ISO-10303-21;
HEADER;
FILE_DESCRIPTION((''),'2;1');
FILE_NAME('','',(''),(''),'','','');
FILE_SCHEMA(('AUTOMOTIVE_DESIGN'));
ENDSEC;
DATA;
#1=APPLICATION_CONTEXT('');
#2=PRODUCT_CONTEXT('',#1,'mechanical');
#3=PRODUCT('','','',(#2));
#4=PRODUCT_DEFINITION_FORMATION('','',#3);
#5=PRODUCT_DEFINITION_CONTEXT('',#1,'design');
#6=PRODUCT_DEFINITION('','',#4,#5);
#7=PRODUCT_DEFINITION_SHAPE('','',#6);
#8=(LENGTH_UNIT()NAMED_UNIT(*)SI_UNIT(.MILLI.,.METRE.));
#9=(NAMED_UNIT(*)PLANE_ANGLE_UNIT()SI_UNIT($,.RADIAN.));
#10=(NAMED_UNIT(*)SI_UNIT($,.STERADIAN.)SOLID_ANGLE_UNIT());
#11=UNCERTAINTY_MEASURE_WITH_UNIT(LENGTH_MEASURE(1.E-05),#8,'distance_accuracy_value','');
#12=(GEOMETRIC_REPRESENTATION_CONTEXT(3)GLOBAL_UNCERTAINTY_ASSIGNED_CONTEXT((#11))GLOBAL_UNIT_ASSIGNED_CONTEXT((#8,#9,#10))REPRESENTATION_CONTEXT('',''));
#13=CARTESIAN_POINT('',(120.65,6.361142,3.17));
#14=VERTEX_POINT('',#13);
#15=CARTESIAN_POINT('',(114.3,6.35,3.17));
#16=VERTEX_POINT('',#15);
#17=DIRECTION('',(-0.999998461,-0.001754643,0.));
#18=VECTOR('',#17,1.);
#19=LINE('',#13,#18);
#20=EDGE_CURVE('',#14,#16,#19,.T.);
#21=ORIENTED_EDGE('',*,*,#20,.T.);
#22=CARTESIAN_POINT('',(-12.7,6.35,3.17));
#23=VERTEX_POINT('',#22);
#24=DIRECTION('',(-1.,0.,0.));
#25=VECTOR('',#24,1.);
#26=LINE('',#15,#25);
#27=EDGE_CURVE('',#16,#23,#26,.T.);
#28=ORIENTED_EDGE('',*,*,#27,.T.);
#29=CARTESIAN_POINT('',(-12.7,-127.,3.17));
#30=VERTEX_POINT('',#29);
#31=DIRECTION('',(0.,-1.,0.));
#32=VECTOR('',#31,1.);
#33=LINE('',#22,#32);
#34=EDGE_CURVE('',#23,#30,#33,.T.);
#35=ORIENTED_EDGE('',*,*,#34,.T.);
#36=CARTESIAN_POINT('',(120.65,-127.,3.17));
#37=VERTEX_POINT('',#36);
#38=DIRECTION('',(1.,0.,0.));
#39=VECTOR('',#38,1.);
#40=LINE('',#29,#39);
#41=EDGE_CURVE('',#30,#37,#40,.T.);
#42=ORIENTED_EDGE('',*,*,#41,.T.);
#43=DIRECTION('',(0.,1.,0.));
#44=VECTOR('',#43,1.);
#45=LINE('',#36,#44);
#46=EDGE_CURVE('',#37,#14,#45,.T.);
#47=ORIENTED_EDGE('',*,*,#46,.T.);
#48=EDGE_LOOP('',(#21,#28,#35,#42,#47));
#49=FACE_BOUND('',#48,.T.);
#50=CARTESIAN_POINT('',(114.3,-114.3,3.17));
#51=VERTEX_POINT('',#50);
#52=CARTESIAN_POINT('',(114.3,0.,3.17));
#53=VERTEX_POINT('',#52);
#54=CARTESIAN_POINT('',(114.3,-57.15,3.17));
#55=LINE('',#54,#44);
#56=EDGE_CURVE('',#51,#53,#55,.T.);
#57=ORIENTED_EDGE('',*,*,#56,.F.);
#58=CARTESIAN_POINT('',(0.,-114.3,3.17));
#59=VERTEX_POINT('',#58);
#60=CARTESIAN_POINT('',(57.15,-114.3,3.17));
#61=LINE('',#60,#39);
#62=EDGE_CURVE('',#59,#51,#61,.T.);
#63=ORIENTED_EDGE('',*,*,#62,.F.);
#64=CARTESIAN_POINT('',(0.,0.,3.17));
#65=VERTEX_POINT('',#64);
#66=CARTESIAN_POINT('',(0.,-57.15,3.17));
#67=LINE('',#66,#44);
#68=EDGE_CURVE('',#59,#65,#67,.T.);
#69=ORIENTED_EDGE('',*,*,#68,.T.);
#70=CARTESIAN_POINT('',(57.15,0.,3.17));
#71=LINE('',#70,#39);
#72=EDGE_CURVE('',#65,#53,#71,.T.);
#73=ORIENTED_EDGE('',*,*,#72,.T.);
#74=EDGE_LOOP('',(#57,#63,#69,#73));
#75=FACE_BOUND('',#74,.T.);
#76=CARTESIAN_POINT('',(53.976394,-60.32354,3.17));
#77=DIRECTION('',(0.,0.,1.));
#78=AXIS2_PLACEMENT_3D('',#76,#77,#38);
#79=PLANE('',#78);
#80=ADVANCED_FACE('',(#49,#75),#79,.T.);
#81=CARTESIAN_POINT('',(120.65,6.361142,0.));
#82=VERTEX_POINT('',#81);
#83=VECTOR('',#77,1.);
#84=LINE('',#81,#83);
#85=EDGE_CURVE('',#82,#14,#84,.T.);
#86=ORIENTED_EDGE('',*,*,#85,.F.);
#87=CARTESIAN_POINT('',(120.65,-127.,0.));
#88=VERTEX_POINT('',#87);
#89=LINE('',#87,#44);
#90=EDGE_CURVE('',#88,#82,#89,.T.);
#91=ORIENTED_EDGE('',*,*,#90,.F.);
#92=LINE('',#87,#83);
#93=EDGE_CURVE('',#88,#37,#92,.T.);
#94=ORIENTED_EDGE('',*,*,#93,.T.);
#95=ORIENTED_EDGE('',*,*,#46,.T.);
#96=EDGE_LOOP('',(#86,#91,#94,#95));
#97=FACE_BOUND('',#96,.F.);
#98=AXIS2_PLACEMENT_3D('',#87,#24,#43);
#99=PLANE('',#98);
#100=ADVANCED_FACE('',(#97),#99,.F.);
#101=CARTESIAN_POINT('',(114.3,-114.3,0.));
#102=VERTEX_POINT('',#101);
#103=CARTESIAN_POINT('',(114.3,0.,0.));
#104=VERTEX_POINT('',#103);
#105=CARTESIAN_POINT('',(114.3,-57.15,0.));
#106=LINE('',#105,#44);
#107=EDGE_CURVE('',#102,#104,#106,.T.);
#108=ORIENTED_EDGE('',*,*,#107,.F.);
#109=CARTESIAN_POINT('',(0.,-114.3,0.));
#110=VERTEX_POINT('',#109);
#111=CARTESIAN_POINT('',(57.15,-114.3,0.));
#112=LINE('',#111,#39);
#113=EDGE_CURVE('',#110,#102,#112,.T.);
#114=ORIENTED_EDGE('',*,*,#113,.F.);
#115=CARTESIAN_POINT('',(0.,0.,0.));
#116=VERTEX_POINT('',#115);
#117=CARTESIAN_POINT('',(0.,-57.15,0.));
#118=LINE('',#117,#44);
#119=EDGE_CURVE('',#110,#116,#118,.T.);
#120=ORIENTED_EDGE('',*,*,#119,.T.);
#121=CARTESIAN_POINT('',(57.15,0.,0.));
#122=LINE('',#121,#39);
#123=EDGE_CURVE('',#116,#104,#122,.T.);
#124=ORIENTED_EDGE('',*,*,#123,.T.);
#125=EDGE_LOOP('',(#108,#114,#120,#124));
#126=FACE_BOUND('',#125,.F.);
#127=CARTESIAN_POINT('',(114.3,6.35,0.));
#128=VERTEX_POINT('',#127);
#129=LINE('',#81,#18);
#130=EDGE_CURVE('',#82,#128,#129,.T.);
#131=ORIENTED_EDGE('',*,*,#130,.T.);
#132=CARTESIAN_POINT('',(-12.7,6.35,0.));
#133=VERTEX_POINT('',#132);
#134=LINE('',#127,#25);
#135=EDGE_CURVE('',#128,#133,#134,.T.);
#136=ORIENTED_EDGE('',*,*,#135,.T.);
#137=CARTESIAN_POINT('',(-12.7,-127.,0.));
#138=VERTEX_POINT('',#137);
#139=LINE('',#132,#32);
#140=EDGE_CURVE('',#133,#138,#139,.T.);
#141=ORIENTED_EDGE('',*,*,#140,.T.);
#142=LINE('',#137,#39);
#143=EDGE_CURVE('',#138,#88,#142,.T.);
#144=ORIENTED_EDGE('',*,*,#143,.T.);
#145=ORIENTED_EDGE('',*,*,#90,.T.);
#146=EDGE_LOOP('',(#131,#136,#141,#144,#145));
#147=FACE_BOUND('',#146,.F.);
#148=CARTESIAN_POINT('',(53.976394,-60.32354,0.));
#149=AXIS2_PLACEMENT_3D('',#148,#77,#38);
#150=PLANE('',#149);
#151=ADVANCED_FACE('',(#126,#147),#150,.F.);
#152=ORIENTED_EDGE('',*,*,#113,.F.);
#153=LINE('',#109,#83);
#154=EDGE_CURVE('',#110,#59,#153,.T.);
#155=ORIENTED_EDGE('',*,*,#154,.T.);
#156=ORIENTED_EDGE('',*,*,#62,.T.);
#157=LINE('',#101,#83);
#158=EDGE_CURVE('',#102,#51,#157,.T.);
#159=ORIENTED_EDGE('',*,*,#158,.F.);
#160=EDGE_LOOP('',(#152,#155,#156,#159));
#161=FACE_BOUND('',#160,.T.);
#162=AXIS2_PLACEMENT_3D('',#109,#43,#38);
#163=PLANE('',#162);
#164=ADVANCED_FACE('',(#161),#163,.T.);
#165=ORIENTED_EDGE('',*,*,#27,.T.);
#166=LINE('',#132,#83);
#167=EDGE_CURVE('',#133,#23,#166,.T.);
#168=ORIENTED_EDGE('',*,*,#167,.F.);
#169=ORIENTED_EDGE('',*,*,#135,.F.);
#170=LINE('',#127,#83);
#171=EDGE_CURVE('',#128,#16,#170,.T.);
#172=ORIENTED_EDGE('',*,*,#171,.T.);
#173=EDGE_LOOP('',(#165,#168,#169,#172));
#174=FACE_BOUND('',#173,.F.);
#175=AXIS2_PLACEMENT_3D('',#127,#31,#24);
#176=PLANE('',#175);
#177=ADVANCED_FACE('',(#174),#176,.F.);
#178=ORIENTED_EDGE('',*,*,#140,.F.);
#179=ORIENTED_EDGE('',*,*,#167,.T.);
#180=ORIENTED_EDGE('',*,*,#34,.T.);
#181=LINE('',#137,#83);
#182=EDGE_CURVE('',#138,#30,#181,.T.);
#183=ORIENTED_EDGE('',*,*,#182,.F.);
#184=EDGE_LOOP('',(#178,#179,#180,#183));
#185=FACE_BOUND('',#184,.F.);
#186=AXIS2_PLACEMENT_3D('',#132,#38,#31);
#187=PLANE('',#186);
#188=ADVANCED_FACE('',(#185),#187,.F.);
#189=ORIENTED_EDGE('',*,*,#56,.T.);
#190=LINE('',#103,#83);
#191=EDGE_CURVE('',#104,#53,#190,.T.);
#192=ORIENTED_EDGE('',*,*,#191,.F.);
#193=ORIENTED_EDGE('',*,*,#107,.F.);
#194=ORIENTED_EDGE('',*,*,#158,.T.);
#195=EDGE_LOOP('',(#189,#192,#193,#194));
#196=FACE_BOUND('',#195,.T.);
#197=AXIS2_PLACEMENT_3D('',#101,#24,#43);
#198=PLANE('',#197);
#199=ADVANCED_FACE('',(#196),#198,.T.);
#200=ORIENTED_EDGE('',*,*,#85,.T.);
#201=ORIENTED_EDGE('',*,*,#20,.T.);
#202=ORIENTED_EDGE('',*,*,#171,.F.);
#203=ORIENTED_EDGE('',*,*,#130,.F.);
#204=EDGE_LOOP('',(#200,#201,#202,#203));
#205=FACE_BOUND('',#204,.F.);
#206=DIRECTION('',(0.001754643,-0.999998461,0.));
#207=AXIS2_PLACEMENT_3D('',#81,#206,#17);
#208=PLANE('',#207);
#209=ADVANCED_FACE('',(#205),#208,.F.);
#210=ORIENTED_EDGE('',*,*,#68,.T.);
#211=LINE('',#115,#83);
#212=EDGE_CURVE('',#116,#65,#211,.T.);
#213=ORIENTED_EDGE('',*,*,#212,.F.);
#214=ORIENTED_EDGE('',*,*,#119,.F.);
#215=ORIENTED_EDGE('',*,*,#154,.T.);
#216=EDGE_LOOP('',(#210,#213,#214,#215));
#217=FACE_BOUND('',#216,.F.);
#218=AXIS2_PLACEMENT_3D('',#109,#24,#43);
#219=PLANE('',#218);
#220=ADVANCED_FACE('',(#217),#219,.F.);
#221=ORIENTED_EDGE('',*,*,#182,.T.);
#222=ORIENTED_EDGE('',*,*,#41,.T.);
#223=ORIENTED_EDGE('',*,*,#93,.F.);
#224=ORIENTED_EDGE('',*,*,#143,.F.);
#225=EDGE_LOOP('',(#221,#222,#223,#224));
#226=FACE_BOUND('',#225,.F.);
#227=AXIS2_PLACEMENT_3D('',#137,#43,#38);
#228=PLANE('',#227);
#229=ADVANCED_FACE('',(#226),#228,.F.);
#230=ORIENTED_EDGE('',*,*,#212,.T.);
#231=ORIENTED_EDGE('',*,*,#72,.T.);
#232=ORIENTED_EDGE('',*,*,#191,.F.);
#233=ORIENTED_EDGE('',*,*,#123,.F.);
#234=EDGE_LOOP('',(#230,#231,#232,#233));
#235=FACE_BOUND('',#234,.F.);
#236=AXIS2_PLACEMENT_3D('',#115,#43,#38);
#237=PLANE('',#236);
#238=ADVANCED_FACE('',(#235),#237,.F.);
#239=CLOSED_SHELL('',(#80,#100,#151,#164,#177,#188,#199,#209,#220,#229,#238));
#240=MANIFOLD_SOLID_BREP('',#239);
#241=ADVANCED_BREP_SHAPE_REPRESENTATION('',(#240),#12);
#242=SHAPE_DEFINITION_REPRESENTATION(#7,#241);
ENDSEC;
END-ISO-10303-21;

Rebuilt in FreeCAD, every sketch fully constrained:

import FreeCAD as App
import Part
import Sketcher

V = App.Vector
Q = App.Units.Quantity


def add_polygon(sketch, points):
    """Adds a closed chain of lines whose ends are joined by coincident constraints."""
    first, n = sketch.GeometryCount, len(points)
    for a, b in zip(points, points[1:] + points[:1]):
        sketch.addGeometry(Part.LineSegment(App.Vector(*a, 0), App.Vector(*b, 0)), False)
    for i in range(n):
        sketch.addConstraint(Sketcher.Constraint("Coincident", first + i, 2, first + (i + 1) % n, 1))

doc = App.newDocument("Part")
body = doc.addObject("PartDesign::Body", "Body")

# Sketch on XY plane
sketch1 = doc.addObject("Sketcher::SketchObject", "Sketch")
body.addObject(sketch1)
sketch1.AttachmentSupport = (doc.XY_Plane, [""])
sketch1.MapMode = "FlatFace"
add_polygon(sketch1, [(114.3, 6.35), (-12.7, 6.35), (-12.7, -127), (120.65, -127), (120.65, 6.361142)])  # lines 0-4
add_polygon(sketch1, [(114.3, -114.3), (0, -114.3), (0, 0), (114.3, 0)])  # lines 5-8
sketch1.addConstraint([
    Sketcher.Constraint("Horizontal", 0),
    Sketcher.Constraint("Vertical", 1),
    Sketcher.Constraint("Horizontal", 2),
    Sketcher.Constraint("Vertical", 3),
    Sketcher.Constraint("Horizontal", 5),
    Sketcher.Constraint("Vertical", 6),
    Sketcher.Constraint("Horizontal", 7),
    Sketcher.Constraint("Vertical", 8),
    Sketcher.Constraint("Coincident", 6, 2, -1, 1),
    Sketcher.Constraint("Vertical", 4, 2, 7, 2),
    Sketcher.Constraint("Equal", 2, 1),
    Sketcher.Constraint("Equal", 7, 6),
    Sketcher.Constraint("DistanceX", 0, 2, 0, 1, Q("5 in")),
    Sketcher.Constraint("DistanceX", 5, 2, 5, 1, Q("4.5 in")),
    Sketcher.Constraint("DistanceY", 1, 2, -1, 1, Q("5 in")),
    Sketcher.Constraint("DistanceX", 2, 1, 2, 2, Q("5.25 in")),
    Sketcher.Constraint("DistanceY", 3, 1, 3, 2, 133.361142),
])
pad1 = doc.addObject("PartDesign::Pad", "Pad")
body.addObject(pad1)
pad1.Profile = sketch1
pad1.Length = 3.17

doc.recompute()
